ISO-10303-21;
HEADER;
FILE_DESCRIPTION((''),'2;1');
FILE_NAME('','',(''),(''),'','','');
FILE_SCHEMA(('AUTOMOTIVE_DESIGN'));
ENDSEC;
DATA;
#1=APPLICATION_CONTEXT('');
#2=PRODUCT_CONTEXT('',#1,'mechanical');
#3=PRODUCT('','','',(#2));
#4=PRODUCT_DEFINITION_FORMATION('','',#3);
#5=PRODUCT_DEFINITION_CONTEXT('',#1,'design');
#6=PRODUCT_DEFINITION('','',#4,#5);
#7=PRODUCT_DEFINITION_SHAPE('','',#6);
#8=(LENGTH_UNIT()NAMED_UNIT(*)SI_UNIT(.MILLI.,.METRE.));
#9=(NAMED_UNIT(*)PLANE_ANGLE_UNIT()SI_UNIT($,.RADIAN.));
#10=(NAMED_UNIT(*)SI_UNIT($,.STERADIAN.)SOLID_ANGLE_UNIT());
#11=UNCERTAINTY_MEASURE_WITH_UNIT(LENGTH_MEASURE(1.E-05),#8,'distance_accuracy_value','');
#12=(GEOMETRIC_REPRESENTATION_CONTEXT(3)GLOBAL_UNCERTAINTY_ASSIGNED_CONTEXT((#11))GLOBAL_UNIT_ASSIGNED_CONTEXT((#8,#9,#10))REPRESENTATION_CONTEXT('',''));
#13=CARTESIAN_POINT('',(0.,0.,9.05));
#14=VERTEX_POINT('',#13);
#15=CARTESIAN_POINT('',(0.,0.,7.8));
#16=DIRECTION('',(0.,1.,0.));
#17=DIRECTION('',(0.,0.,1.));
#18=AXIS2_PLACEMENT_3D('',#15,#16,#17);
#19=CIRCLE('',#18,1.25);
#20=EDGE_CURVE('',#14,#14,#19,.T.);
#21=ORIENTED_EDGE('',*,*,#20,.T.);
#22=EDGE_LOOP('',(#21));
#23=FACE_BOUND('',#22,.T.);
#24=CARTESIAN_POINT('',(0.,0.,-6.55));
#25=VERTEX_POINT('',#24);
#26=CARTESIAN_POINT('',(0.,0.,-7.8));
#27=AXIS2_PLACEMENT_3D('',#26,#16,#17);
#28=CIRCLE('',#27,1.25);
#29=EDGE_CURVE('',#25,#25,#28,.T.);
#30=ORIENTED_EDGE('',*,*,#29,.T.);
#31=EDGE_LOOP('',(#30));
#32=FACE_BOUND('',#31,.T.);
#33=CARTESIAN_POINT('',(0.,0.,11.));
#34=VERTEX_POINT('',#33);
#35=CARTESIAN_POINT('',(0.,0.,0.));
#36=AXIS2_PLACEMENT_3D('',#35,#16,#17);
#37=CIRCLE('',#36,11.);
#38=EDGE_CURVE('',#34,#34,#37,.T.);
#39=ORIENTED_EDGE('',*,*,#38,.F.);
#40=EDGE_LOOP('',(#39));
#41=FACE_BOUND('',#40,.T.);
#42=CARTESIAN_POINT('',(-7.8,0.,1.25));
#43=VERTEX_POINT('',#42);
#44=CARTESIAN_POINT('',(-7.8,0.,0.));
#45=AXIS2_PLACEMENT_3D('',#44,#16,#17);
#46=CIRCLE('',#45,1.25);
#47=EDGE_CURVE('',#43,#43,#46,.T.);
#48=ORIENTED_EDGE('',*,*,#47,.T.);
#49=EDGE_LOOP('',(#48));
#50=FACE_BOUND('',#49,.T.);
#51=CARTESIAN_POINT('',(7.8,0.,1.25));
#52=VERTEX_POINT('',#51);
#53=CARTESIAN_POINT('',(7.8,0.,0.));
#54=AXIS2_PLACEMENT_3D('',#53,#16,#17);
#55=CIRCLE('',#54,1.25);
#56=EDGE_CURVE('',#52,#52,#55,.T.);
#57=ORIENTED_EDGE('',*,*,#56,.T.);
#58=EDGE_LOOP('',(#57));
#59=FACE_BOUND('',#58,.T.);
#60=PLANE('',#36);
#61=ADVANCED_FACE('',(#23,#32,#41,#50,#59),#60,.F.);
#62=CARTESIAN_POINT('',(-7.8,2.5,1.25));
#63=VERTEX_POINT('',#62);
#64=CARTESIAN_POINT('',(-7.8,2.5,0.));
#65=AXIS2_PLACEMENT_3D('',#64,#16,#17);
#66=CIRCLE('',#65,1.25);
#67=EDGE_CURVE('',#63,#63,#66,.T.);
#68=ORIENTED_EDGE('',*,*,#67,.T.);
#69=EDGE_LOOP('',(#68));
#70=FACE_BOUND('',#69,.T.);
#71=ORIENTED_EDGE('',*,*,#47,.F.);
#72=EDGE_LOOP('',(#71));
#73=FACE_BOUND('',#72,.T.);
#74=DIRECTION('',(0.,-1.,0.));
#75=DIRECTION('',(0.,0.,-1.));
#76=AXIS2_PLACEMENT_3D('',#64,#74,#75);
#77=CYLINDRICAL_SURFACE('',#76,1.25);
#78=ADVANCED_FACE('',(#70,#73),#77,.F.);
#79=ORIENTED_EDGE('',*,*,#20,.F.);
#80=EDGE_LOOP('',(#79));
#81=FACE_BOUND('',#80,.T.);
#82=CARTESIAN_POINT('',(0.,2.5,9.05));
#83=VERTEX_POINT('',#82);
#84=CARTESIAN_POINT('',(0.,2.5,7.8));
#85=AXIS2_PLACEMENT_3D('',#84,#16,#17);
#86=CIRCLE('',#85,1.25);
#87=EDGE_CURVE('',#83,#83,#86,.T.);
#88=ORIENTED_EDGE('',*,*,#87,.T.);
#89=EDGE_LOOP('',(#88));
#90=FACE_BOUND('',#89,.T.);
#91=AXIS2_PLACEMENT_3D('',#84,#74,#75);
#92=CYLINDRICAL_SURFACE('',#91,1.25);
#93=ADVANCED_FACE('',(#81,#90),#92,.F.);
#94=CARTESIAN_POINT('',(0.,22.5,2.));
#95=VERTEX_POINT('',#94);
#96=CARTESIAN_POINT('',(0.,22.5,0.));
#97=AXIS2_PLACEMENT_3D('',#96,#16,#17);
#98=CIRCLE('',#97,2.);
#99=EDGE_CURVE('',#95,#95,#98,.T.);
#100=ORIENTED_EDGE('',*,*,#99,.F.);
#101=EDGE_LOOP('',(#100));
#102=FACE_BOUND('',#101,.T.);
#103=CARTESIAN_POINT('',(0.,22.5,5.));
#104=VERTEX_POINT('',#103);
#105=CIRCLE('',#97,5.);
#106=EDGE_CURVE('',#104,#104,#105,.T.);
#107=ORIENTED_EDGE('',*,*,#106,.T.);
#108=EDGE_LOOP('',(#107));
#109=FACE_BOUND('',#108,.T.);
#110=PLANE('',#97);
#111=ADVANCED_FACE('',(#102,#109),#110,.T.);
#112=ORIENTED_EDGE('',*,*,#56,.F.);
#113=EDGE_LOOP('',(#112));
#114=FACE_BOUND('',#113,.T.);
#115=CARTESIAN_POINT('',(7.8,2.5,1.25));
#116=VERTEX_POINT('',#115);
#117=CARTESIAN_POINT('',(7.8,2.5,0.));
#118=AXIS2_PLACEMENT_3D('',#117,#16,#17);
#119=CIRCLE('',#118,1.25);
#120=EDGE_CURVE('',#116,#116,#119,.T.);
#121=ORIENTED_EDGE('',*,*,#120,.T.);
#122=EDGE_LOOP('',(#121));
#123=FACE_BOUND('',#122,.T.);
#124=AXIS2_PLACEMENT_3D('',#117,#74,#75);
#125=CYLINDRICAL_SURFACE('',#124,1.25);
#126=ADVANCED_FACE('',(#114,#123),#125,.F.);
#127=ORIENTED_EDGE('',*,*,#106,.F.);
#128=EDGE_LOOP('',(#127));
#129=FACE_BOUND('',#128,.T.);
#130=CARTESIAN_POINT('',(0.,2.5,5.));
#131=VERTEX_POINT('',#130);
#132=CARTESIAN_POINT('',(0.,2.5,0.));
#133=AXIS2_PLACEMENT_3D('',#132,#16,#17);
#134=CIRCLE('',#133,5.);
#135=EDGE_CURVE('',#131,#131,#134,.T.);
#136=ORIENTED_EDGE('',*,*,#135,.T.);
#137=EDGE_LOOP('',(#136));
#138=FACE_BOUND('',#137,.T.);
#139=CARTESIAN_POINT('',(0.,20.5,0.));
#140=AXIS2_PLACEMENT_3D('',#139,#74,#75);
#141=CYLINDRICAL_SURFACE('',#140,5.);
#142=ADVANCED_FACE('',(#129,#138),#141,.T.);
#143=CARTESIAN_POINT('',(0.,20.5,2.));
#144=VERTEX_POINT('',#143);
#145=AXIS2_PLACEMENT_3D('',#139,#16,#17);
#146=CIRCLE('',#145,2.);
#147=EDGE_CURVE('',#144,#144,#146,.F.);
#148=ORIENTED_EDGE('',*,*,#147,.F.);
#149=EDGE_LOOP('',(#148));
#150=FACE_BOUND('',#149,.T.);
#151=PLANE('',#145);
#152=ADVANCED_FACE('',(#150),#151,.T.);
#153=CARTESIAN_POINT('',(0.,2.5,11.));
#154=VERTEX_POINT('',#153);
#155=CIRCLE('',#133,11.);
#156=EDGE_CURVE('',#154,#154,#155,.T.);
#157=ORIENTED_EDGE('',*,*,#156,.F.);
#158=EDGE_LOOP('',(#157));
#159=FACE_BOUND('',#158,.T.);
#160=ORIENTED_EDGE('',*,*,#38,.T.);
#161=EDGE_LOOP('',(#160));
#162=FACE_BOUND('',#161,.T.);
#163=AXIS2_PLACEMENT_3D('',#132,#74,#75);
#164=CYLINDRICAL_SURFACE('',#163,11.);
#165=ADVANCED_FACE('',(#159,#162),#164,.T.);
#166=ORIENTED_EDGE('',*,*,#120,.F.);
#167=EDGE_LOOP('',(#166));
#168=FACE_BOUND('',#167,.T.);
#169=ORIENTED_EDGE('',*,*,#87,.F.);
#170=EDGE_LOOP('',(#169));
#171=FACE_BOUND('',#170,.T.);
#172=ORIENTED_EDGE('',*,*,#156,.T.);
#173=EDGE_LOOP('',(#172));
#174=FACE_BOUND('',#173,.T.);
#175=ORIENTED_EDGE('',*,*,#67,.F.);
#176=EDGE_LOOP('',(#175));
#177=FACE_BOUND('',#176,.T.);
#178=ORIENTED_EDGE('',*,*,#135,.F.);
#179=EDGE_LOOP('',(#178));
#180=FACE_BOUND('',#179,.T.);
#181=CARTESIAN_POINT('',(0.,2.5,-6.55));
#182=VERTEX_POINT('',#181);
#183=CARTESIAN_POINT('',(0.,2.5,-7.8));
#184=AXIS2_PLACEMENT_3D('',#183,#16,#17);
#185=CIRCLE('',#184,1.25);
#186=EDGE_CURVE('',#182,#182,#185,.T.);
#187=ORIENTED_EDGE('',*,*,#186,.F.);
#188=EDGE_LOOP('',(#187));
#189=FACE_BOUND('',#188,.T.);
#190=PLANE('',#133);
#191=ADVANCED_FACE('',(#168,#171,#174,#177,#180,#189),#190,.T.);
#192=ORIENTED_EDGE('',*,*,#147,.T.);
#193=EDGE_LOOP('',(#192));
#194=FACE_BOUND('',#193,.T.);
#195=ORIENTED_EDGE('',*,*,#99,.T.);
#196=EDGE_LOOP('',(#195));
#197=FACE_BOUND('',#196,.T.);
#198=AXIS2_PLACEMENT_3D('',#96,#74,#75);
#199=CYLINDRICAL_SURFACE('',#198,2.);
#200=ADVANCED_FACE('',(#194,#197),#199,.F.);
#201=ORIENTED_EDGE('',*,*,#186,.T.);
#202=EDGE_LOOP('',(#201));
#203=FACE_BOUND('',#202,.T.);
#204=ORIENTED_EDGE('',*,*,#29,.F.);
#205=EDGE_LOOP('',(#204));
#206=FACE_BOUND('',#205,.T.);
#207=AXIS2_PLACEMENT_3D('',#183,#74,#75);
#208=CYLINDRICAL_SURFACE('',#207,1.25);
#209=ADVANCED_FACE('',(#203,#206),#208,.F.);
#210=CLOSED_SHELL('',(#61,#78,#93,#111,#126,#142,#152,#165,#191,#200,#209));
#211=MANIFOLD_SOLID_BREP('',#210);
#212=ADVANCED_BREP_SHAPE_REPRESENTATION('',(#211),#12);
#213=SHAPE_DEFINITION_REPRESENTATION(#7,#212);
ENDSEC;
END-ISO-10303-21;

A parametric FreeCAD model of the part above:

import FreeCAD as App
import Part
import Sketcher

V = App.Vector

doc = App.newDocument("Part")
body = doc.addObject("PartDesign::Body", "Body")

# Sketch on XZ plane
sketch1 = body.newObject("Sketcher::SketchObject", "Sketch")
sketch1.AttachmentSupport = (doc.getObject("XZ_Plane"), [""])
sketch1.MapMode = "FlatFace"
sketch1.addGeometry([
    Part.Circle(V(0, 0, 0), V(0, 0, 1), 11),  # 0
    Part.Circle(V(0, -7.8, 0), V(0, 0, 1), 1.25),  # 1
    Part.Circle(V(-7.8, 0, 0), V(0, 0, 1), 1.25),  # 2
    Part.Circle(V(7.8, 0, 0), V(0, 0, 1), 1.25),  # 3
    Part.Circle(V(0, 7.8, 0), V(0, 0, 1), 1.25),  # 4
], False)
sketch1.addConstraint([
    Sketcher.Constraint("Coincident", 0, 3, -1, 1),
    Sketcher.Constraint("Equal", 1, 2),
    Sketcher.Constraint("Equal", 2, 3),
    Sketcher.Constraint("Equal", 3, 4),
    Sketcher.Constraint("Symmetric", 2, 3, 3, 3, -1, 1),
    Sketcher.Constraint("Symmetric", 1, 3, 4, 3, -1, 1),
    Sketcher.Constraint("PointOnObject", 1, 3, -2),
    Sketcher.Constraint("PointOnObject", 2, 3, -1),
    Sketcher.Constraint("Diameter", 0, 22.0),
    Sketcher.Constraint("Diameter", 1, 2.5),
    Sketcher.Constraint("DistanceY", 1, 3, -1, 1, 7.8),
    Sketcher.Constraint("DistanceX", 2, 3, -1, 1, 7.8),
])
pad1 = body.newObject("PartDesign::Pad", "Pad")
pad1.Profile = sketch1
pad1.Length = 2.5
pad1.Reversed = True

# Sketch on XZ plane
sketch2 = body.newObject("Sketcher::SketchObject", "Sketch001")
sketch2.AttachmentSupport = (doc.getObject("XZ_Plane"), [""])
sketch2.MapMode = "FlatFace"
sketch2.AttachmentOffset = App.Placement(V(0, 0, -2.5), App.Rotation())
sketch2.addGeometry(Part.Circle(V(0, 0, 0), V(0, 0, 1), 5), False)
sketch2.addConstraint([
    Sketcher.Constraint("Coincident", 0, 3, -1, 1),
    Sketcher.Constraint("Diameter", 0, 10.0),
])
pad2 = body.newObject("PartDesign::Pad", "Pad001")
pad2.Profile = sketch2
pad2.Length = 18
pad2.Reversed = True

# Sketch on XZ plane
sketch3 = body.newObject("Sketcher::SketchObject", "Sketch002")
sketch3.AttachmentSupport = (doc.getObject("XZ_Plane"), [""])
sketch3.MapMode = "FlatFace"
sketch3.AttachmentOffset = App.Placement(V(0, 0, -20.5), App.Rotation())
sketch3.addGeometry([
    Part.Circle(V(0, 0, 0), V(0, 0, 1), 5),
    Part.Circle(V(0, 0, 0), V(0, 0, 1), 2),
], False)
sketch3.addConstraint([
    Sketcher.Constraint("Coincident", 0, 3, -1, 1),
    Sketcher.Constraint("Coincident", 1, 3, -1, 1),
    Sketcher.Constraint("Diameter", 0, 10.0),
    Sketcher.Constraint("Diameter", 1, 4.0),
])
pad3 = body.newObject("PartDesign::Pad", "Pad002")
pad3.Profile = sketch3
pad3.Length = 2
pad3.Reversed = True

doc.recompute()
